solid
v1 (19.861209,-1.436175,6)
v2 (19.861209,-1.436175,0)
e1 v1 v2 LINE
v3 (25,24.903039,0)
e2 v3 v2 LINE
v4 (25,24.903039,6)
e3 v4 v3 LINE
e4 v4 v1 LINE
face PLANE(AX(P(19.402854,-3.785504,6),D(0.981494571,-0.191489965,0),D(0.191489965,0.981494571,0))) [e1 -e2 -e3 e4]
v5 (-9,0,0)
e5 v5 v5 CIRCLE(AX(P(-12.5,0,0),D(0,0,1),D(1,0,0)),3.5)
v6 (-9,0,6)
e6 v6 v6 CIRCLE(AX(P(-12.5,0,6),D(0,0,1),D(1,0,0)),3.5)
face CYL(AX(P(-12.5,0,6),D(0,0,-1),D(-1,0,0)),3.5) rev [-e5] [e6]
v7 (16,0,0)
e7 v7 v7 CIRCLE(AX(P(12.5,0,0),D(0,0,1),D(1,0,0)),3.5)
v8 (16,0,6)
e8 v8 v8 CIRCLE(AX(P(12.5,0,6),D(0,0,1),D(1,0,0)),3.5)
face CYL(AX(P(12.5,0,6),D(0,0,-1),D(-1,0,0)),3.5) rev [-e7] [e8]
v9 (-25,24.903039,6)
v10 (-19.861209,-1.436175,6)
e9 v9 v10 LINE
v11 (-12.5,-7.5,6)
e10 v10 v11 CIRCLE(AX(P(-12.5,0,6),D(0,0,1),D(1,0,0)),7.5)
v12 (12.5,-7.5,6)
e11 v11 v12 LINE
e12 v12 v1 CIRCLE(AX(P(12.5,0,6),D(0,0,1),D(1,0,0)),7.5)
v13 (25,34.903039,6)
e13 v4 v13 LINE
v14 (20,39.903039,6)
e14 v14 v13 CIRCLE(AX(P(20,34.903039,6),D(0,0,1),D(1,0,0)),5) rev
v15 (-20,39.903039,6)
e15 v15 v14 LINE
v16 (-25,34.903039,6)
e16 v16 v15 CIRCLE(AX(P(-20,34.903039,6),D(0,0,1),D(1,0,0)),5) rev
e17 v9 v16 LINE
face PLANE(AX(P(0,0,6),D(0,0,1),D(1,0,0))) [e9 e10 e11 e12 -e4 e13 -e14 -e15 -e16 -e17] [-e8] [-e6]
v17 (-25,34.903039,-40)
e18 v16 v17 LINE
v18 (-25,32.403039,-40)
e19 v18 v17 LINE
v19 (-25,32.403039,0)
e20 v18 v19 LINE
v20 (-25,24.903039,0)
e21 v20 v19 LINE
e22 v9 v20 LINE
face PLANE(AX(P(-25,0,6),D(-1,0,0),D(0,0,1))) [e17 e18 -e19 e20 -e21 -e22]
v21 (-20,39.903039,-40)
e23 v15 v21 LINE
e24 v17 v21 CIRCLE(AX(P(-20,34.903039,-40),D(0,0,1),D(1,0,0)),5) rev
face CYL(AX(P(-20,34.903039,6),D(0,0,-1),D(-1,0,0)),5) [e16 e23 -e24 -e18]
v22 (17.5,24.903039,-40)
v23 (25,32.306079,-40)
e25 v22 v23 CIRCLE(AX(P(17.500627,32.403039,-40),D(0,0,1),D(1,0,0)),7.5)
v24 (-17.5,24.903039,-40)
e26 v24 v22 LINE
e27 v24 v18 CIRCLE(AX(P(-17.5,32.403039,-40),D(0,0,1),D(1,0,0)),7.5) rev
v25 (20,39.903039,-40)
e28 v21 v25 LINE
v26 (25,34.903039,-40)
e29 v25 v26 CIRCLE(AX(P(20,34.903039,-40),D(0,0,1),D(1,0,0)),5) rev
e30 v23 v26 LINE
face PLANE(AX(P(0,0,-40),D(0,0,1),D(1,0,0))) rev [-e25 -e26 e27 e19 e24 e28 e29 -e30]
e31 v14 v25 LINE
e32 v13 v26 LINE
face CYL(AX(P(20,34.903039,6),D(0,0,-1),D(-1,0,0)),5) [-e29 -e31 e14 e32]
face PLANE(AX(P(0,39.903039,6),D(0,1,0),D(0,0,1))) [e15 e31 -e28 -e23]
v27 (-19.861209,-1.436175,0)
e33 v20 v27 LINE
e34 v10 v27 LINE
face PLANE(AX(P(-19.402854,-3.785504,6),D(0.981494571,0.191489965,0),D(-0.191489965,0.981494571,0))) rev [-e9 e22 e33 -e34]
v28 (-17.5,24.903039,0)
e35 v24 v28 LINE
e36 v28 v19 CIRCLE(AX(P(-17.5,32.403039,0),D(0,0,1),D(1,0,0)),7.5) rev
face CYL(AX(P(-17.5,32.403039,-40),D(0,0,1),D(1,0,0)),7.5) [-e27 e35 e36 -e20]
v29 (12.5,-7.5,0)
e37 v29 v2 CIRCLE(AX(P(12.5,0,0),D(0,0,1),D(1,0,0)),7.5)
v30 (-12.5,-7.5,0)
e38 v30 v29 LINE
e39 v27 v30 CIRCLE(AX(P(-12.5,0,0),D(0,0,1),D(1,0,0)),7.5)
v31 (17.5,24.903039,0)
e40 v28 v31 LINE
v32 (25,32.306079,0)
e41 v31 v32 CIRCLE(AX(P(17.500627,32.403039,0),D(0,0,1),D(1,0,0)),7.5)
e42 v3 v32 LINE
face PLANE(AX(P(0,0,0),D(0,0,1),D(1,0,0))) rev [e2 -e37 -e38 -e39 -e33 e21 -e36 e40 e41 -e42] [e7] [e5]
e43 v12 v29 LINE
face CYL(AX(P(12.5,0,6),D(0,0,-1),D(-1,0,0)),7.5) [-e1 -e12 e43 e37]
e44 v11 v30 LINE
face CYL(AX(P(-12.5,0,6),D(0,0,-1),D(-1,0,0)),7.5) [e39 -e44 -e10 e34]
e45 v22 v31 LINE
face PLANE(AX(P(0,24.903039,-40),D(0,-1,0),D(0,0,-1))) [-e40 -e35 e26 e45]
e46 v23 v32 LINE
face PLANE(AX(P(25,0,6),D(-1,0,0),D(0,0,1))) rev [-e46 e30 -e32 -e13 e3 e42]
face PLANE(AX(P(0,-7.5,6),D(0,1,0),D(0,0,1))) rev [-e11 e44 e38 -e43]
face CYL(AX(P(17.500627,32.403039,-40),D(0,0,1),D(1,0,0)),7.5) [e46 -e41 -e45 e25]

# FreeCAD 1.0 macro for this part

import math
import FreeCAD as App
import Part
import Sketcher

V = App.Vector

doc = App.newDocument("Part")
body = doc.addObject("PartDesign::Body", "Body")

# Sketch on XY plane
sketch1 = body.newObject("Sketcher::SketchObject", "Sketch")
sketch1.AttachmentSupport = (doc.getObject("XY_Plane"), [""])
sketch1.MapMode = "FlatFace"
sketch1.addGeometry(Part.ArcOfCircle(Part.Circle(V(-12.5, 0, 0), V(0, 0, 1), 7.5), math.radians(-169), math.radians(-90)), False)
sketch1.addGeometry(Part.LineSegment(V(-12.5, -7.5, 0), V(12.5, -7.5, 0)), False)
sketch1.addGeometry(Part.ArcOfCircle(Part.Circle(V(12.5, 0, 0), V(0, 0, 1), 7.5), math.radians(-90), math.radians(-11)), False)
sketch1.addGeometry(Part.LineSegment(V(19.9, -1.4, 0), V(25, 24.9, 0)), False)
sketch1.addGeometry(Part.LineSegment(V(25, 24.9, 0), V(25, 34.9, 0)), False)
sketch1.addGeometry(Part.ArcOfCircle(Part.Circle(V(20, 34.9, 0), V(0, 0, 1), 5), math.radians(0), math.radians(90)), False)
sketch1.addGeometry(Part.LineSegment(V(20, 39.9, 0), V(-20, 39.9, 0)), False)
sketch1.addGeometry(Part.ArcOfCircle(Part.Circle(V(-20, 34.9, 0), V(0, 0, 1), 5), math.radians(90), math.radians(180)), False)
sketch1.addGeometry(Part.LineSegment(V(-25, 34.9, 0), V(-25, 24.9, 0)), False)
sketch1.addGeometry(Part.LineSegment(V(-25, 24.9, 0), V(-19.9, -1.4, 0)), False)
sketch1.addGeometry(Part.Circle(V(-12.5, 0, 0), V(0, 0, 1), 3.5), False)
sketch1.addGeometry(Part.Circle(V(12.5, 0, 0), V(0, 0, 1), 3.5), False)
sketch1.addConstraint(Sketcher.Constraint("Tangent", 0, 2, 1, 1))
sketch1.addConstraint(Sketcher.Constraint("Tangent", 1, 2, 2, 1))
sketch1.addConstraint(Sketcher.Constraint("Tangent", 2, 2, 3, 1))
sketch1.addConstraint(Sketcher.Constraint("Coincident", 3, 2, 4, 1))
sketch1.addConstraint(Sketcher.Constraint("Tangent", 4, 2, 5, 1))
sketch1.addConstraint(Sketcher.Constraint("Tangent", 5, 2, 6, 1))
sketch1.addConstraint(Sketcher.Constraint("Tangent", 6, 2, 7, 1))
sketch1.addConstraint(Sketcher.Constraint("Tangent", 7, 2, 8, 1))
sketch1.addConstraint(Sketcher.Constraint("Coincident", 8, 2, 9, 1))
sketch1.addConstraint(Sketcher.Constraint("Tangent", 9, 2, 0, 1))
sketch1.addConstraint(Sketcher.Constraint("Horizontal", 1))
sketch1.addConstraint(Sketcher.Constraint("Vertical", 4))
sketch1.addConstraint(Sketcher.Constraint("Horizontal", 6))
sketch1.addConstraint(Sketcher.Constraint("Vertical", 8))
sketch1.addConstraint(Sketcher.Constraint("Coincident", 10, 3, 0, 3))
sketch1.addConstraint(Sketcher.Constraint("Coincident", 11, 3, 2, 3))
sketch1.addConstraint(Sketcher.Constraint("Equal", 0, 2))
sketch1.addConstraint(Sketcher.Constraint("Equal", 5, 7))
sketch1.addConstraint(Sketcher.Constraint("Equal", 10, 11))
sketch1.addConstraint(Sketcher.Constraint("Symmetric", 0, 3, 2, 3, -1, 1))
sketch1.addConstraint(Sketcher.Constraint("Symmetric", 3, 2, 8, 2, -2))
sketch1.addConstraint(Sketcher.Constraint("Diameter", 10, 7.0))
sketch1.addConstraint(Sketcher.Constraint("Radius", 5, 5.0))
sketch1.addConstraint(Sketcher.Constraint("Radius", 0, 7.5))
sketch1.addConstraint(Sketcher.Constraint("DistanceX", 1, 1, 1, 2, 25.0))
sketch1.addConstraint(Sketcher.Constraint("DistanceX", 6, 2, 6, 1, 40.0))
sketch1.addConstraint(Sketcher.Constraint("DistanceY", 4, 1, 4, 2, 10.0))
sketch1.addConstraint(Sketcher.Constraint("DistanceY", -1, 1, 5, 3, 34.903039))
pad1 = body.newObject("PartDesign::Pad", "Pad")
pad1.Profile = sketch1
pad1.Length = 6

# Sketch on XY plane
sketch2 = body.newObject("Sketcher::SketchObject", "Sketch001")
sketch2.AttachmentSupport = (doc.getObject("XY_Plane"), [""])
sketch2.MapMode = "FlatFace"
sketch2.AttachmentOffset = App.Placement(V(0, 0, -40), App.Rotation())
sketch2.addGeometry(Part.LineSegment(V(-25, 34.9, 0), V(-25, 32.4, 0)), False)
sketch2.addGeometry(Part.ArcOfCircle(Part.Circle(V(-17.5, 32.4, 0), V(0, 0, 1), 7.5), math.radians(180), math.radians(270)), False)
sketch2.addGeometry(Part.LineSegment(V(-17.5, 24.9, 0), V(17.5, 24.9, 0)), False)
sketch2.addGeometry(Part.ArcOfCircle(Part.Circle(V(17.5, 32.4, 0), V(0, 0, 1), 7.5), math.radians(-90), math.radians(-1)), False)
sketch2.addGeometry(Part.LineSegment(V(25, 32.3, 0), V(25, 34.9, 0)), False)
sketch2.addGeometry(Part.ArcOfCircle(Part.Circle(V(20, 34.9, 0), V(0, 0, 1), 5), math.radians(0), math.radians(90)), False)
sketch2.addGeometry(Part.LineSegment(V(20, 39.9, 0), V(-20, 39.9, 0)), False)
sketch2.addGeometry(Part.ArcOfCircle(Part.Circle(V(-20, 34.9, 0), V(0, 0, 1), 5), math.radians(90), math.radians(180)), False)
sketch2.addConstraint(Sketcher.Constraint("Tangent", 0, 2, 1, 1))
sketch2.addConstraint(Sketcher.Constraint("Tangent", 1, 2, 2, 1))
sketch2.addConstraint(Sketcher.Constraint("Coincident", 2, 2, 3, 1))
sketch2.addConstraint(Sketcher.Constraint("Coincident", 3, 2, 4, 1))
sketch2.addConstraint(Sketcher.Constraint("Tangent", 4, 2, 5, 1))
sketch2.addConstraint(Sketcher.Constraint("Tangent", 5, 2, 6, 1))
sketch2.addConstraint(Sketcher.Constraint("Tangent", 6, 2, 7, 1))
sketch2.addConstraint(Sketcher.Constraint("Tangent", 7, 2, 0, 1))
sketch2.addConstraint(Sketcher.Constraint("Vertical", 0))
sketch2.addConstraint(Sketcher.Constraint("Horizontal", 2))
sketch2.addConstraint(Sketcher.Constraint("Vertical", 4))
sketch2.addConstraint(Sketcher.Constraint("Horizontal", 6))
sketch2.addConstraint(Sketcher.Constraint("Equal", 1, 3))
sketch2.addConstraint(Sketcher.Constraint("Equal", 5, 7))
sketch2.addConstraint(Sketcher.Constraint("Radius", 5, 5.0))
sketch2.addConstraint(Sketcher.Constraint("Radius", 1, 7.5))
sketch2.addConstraint(Sketcher.Constraint("DistanceX", 2, 1, 2, 2, 35.0))
sketch2.addConstraint(Sketcher.Constraint("DistanceX", 6, 2, 6, 1, 40.0))
sketch2.addConstraint(Sketcher.Constraint("DistanceY", 0, 2, 0, 1, 2.5))
sketch2.addConstraint(Sketcher.Constraint("DistanceX", -1, 1, 5, 3, 20.0))
sketch2.addConstraint(Sketcher.Constraint("DistanceY", 4, 1, 4, 2, 2.596961))
sketch2.addConstraint(Sketcher.Constraint("DistanceY", -1, 1, 1, 3, 32.403039))
pad2 = body.newObject("PartDesign::Pad", "Pad001")
pad2.Profile = sketch2
pad2.Length = 40

doc.recompute()
